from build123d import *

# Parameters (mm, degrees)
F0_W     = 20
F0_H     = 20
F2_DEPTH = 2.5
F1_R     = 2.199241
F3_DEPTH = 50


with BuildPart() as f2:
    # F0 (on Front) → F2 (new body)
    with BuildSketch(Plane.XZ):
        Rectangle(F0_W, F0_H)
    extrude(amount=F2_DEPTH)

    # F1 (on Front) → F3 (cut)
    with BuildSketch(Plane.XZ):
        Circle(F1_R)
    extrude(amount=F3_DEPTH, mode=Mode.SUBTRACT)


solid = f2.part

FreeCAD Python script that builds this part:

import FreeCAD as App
import Part
import Sketcher

V = App.Vector

doc = App.newDocument("Part")
body = doc.addObject("PartDesign::Body", "Body")

sketch1 = doc.addObject("Sketcher::SketchObject", "Sketch")
body.addObject(sketch1)
sketch1.AttachmentSupport = (doc.XZ_Plane, [""])
sketch1.MapMode = "FlatFace"
sketch1.addGeometry(Part.LineSegment(V(-10, 10, 0), V(-10, -10, 0)), False)
sketch1.addGeometry(Part.LineSegment(V(-10, -10, 0), V(10, -10, 0)), False)
sketch1.addGeometry(Part.LineSegment(V(10, -10, 0), V(10, 10, 0)), False)
sketch1.addGeometry(Part.LineSegment(V(10, 10, 0), V(-10, 10, 0)), False)
sketch1.addConstraint(Sketcher.Constraint("Coincident", 0, 2, 1, 1))
sketch1.addConstraint(Sketcher.Constraint("Coincident", 1, 2, 2, 1))
sketch1.addConstraint(Sketcher.Constraint("Coincident", 2, 2, 3, 1))
sketch1.addConstraint(Sketcher.Constraint("Coincident", 3, 2, 0, 1))
sketch1.addConstraint(Sketcher.Constraint("Vertical", 0))
sketch1.addConstraint(Sketcher.Constraint("Horizontal", 1))
sketch1.addConstraint(Sketcher.Constraint("Vertical", 2))
sketch1.addConstraint(Sketcher.Constraint("Horizontal", 3))
sketch1.addConstraint(Sketcher.Constraint("Symmetric", 0, 2, 2, 2, -1, 1))
sketch1.addConstraint(Sketcher.Constraint("Equal", 3, 0))
sketch1.addConstraint(Sketcher.Constraint("DistanceX", 1, 1, 1, 2, 20.0))
pad1 = doc.addObject("PartDesign::Pad", "Pad")
body.addObject(pad1)
pad1.Profile = sketch1
pad1.Length = 2.5

sketch2 = doc.addObject("Sketcher::SketchObject", "Sketch001")
body.addObject(sketch2)
sketch2.AttachmentSupport = (doc.XZ_Plane, [""])
sketch2.MapMode = "FlatFace"
sketch2.addGeometry(Part.Circle(V(0, 0, 0), V(0, 0, 1), 2.199241), False)
sketch2.addConstraint(Sketcher.Constraint("Coincident", 0, 3, -1, 1))
sketch2.addConstraint(Sketcher.Constraint("Diameter", 0, 4.398482))
pocket1 = doc.addObject("PartDesign::Pocket", "Pocket")
body.addObject(pocket1)
pocket1.Profile = sketch2
pocket1.Length = 50
pocket1.Reversed = True

doc.recompute()
